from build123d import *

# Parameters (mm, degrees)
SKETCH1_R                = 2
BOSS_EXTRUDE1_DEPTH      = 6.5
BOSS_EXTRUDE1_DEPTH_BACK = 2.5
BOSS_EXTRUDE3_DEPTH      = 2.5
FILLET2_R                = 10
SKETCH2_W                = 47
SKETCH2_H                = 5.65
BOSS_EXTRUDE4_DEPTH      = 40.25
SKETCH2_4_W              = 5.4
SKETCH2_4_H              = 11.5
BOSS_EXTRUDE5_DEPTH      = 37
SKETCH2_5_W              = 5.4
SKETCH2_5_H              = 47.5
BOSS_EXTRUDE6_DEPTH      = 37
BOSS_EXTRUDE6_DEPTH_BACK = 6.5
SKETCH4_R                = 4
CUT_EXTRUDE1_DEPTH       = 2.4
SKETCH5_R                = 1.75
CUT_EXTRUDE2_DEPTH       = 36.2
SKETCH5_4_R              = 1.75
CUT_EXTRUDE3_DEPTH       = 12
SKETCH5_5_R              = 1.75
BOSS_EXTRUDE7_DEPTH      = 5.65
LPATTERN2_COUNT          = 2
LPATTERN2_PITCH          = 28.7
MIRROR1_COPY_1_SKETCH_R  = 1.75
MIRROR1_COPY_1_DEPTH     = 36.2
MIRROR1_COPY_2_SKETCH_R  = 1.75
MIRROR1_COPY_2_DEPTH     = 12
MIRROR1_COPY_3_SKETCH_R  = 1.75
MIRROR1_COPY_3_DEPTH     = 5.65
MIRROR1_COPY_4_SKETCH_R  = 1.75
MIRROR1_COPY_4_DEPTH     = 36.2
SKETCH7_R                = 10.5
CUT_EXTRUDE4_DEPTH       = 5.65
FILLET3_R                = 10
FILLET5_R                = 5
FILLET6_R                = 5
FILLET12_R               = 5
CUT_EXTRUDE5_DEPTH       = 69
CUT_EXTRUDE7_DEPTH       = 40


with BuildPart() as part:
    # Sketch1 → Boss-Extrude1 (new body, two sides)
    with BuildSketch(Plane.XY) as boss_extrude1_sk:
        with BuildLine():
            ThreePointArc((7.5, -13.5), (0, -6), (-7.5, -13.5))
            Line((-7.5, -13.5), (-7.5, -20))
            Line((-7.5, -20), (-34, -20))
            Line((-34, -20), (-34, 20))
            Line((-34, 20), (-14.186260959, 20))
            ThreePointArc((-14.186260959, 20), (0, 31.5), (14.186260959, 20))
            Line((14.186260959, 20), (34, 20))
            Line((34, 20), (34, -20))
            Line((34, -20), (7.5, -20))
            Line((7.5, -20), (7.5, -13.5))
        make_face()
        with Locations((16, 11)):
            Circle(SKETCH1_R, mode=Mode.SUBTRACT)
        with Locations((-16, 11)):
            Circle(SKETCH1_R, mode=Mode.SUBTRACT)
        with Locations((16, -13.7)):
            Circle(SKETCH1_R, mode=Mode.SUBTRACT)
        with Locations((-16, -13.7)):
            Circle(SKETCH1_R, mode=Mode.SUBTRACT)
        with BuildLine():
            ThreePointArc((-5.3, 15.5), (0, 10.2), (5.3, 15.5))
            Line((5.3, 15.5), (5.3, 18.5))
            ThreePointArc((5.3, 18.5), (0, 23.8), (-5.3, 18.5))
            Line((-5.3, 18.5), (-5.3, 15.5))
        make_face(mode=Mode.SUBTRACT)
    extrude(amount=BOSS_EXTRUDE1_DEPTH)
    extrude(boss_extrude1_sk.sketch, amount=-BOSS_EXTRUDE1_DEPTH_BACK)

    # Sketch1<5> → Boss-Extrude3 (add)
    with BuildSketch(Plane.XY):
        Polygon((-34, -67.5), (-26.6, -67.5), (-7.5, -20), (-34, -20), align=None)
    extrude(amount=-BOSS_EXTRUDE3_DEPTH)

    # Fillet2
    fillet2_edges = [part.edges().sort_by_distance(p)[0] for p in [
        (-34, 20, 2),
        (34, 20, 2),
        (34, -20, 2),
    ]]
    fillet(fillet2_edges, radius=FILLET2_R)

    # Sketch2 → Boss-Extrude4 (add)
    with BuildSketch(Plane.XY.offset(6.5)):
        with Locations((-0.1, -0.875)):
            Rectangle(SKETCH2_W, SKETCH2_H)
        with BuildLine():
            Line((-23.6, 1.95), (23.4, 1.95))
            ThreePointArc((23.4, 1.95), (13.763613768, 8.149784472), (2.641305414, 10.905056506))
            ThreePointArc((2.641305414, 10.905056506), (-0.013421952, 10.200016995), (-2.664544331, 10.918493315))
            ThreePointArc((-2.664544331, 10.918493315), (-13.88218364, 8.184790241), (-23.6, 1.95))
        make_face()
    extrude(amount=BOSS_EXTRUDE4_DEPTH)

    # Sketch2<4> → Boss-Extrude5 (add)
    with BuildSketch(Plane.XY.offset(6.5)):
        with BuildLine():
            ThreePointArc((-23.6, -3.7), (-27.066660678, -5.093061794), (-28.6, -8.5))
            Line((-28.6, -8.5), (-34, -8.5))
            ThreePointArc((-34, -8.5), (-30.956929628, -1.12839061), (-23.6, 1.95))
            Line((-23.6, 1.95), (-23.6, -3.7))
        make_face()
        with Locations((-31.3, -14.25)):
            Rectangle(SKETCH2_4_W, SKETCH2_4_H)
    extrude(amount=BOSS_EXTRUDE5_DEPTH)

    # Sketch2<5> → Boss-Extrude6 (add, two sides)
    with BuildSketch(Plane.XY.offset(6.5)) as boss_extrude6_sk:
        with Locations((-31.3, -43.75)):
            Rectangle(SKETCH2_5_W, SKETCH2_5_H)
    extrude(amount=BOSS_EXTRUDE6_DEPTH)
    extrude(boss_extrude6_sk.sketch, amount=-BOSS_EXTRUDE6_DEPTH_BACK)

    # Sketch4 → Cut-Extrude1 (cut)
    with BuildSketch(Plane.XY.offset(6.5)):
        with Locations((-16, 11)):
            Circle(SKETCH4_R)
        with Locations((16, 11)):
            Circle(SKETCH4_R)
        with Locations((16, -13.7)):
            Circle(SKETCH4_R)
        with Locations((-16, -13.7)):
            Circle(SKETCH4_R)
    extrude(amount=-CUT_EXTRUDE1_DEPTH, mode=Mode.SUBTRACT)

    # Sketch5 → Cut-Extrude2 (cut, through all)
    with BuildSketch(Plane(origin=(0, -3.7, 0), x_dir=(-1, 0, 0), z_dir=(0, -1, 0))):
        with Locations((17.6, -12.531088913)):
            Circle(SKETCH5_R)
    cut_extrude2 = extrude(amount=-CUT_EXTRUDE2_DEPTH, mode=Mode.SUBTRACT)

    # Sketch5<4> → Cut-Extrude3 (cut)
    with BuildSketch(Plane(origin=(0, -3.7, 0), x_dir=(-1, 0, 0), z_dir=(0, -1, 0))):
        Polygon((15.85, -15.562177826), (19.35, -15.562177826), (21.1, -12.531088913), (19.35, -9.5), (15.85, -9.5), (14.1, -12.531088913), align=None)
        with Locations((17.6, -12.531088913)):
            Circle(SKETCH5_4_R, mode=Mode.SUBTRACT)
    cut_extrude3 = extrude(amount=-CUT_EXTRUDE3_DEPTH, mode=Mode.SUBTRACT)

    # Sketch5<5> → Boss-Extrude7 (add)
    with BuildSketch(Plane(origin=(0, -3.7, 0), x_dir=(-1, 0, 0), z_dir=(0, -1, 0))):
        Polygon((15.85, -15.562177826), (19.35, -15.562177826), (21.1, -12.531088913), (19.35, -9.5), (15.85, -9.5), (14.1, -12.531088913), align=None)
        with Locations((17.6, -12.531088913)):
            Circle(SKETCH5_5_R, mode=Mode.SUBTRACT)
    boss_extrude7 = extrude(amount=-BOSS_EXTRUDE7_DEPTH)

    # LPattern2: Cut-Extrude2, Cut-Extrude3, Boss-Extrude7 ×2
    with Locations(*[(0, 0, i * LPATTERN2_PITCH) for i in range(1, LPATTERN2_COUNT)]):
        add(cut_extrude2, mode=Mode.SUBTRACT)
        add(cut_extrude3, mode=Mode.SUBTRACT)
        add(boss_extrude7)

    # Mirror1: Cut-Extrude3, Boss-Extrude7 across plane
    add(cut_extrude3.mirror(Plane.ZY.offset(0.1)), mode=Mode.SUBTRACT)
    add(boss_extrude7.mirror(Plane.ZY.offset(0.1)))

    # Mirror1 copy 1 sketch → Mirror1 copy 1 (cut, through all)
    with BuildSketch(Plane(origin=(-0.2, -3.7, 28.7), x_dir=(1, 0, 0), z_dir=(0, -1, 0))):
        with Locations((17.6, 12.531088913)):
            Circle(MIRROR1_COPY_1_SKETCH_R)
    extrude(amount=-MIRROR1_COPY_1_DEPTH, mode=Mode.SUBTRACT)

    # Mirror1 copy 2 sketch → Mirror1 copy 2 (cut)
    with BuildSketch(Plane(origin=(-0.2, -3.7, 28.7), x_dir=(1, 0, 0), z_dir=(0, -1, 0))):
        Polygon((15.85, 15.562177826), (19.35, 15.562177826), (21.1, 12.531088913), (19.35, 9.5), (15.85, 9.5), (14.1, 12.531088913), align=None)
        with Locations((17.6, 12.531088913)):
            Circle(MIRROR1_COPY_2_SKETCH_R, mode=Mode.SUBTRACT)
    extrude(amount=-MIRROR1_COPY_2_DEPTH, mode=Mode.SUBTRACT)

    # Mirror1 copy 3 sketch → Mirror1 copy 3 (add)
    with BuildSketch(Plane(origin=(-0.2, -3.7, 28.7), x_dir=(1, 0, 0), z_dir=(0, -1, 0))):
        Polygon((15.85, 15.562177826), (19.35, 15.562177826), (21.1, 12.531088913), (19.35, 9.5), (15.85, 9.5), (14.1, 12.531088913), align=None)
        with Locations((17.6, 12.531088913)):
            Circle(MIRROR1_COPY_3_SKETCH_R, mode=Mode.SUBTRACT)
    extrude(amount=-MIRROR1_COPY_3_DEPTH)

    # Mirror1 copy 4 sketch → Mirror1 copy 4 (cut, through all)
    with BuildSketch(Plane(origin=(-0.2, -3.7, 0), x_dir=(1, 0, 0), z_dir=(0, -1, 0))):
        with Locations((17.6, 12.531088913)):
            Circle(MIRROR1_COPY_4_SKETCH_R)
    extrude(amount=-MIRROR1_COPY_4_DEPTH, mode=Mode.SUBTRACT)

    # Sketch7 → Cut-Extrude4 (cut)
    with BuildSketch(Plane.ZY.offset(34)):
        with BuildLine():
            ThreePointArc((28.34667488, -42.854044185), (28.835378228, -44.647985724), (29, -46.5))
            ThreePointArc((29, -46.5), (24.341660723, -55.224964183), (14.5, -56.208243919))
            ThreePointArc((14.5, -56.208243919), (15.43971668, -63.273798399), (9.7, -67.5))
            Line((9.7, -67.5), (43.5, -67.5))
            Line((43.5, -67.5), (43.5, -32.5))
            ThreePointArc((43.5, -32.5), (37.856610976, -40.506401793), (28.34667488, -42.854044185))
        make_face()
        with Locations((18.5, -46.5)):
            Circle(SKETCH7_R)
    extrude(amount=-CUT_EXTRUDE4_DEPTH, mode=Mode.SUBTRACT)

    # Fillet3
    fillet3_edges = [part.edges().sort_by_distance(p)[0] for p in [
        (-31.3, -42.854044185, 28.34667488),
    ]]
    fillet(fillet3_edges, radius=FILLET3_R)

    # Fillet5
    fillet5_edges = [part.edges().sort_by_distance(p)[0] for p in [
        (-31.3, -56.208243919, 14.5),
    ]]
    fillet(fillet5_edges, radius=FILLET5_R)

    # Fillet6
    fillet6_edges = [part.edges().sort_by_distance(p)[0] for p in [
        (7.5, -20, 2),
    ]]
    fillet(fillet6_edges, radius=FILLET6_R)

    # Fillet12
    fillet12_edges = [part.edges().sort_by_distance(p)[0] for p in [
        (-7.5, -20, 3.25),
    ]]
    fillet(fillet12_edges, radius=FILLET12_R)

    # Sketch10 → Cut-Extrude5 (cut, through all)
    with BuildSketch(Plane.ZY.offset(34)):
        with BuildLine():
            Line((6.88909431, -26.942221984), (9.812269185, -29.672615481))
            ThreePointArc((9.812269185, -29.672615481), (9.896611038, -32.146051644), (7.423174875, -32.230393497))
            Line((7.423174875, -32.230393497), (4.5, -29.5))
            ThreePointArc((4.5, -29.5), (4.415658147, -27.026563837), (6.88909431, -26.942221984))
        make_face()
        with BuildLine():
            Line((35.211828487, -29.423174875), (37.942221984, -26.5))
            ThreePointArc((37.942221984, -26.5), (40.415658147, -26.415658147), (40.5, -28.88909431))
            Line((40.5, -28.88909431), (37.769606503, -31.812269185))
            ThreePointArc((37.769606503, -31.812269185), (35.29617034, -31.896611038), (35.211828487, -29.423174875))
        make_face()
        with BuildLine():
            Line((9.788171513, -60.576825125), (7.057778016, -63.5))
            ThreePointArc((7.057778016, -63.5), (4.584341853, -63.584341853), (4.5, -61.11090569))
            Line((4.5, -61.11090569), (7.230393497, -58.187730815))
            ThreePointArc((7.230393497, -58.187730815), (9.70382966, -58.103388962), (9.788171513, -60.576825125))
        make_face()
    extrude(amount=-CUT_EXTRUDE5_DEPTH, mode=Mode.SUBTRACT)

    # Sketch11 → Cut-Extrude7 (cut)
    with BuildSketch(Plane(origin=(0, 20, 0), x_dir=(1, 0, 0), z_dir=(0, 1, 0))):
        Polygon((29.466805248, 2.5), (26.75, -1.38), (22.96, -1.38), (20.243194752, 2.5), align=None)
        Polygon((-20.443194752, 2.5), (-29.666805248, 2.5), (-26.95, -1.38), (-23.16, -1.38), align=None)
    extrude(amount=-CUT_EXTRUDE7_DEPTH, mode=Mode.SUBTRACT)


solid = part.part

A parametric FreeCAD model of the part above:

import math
import FreeCAD as App
import Part
import Sketcher
Q = App.Units.Quantity


def edges_at(feature, points):
    """Names of the edges that pass closest to the given points."""
    edges = feature.Shape.Edges
    near = lambda p: min(range(len(edges)), key=lambda i: edges[i].distToShape(Part.Vertex(*p))[0])
    return sorted({f"Edge{near(p) + 1}" for p in points})


def add_polygon(sketch, points):
    """Adds a closed chain of lines whose ends are joined by coincident constraints."""
    first, n = sketch.GeometryCount, len(points)
    for a, b in zip(points, points[1:] + points[:1]):
        sketch.addGeometry(Part.LineSegment(App.Vector(*a, 0), App.Vector(*b, 0)), False)
    for i in range(n):
        sketch.addConstraint(Sketcher.Constraint("Coincident", first + i, 2, first + (i + 1) % n, 1))

doc = App.newDocument("Part")
body = doc.addObject("PartDesign::Body", "Body")

sketch1 = doc.addObject("Sketcher::SketchObject", "Sketch")
body.addObject(sketch1)
sketch1.AttachmentSupport = (doc.XY_Plane, [""])
sketch1.MapMode = "FlatFace"
sketch1.addGeometry([
    Part.ArcOfCircle(Part.Circle(App.Vector(0, -13.5, 0), App.Vector(0, 0, 1), 7.5), math.radians(0), math.radians(180)),
    Part.LineSegment(App.Vector(7.5, -13.5, 0), App.Vector(7.5, -20, 0)),
    Part.LineSegment(App.Vector(7.5, -20, 0), App.Vector(34, -20, 0)),
    Part.LineSegment(App.Vector(34, -20, 0), App.Vector(34, 20, 0)),
    Part.LineSegment(App.Vector(34, 20, 0), App.Vector(14.186261, 20, 0)),
    Part.ArcOfCircle(Part.Circle(App.Vector(0, 17, 0), App.Vector(0, 0, 1), 14.5), math.radians(11.940544), math.radians(168.059456)),
    Part.LineSegment(App.Vector(-14.186261, 20, 0), App.Vector(-34, 20, 0)),
    Part.LineSegment(App.Vector(-34, 20, 0), App.Vector(-34, -20, 0)),
    Part.LineSegment(App.Vector(-34, -20, 0), App.Vector(-7.5, -20, 0)),
    Part.LineSegment(App.Vector(-7.5, -20, 0), App.Vector(-7.5, -13.5, 0)),
    Part.Circle(App.Vector(16, -13.7, 0), App.Vector(0, 0, 1), 2),
    Part.Circle(App.Vector(-16, -13.7, 0), App.Vector(0, 0, 1), 2),
    Part.Circle(App.Vector(16, 11, 0), App.Vector(0, 0, 1), 2),
    Part.Circle(App.Vector(-16, 11, 0), App.Vector(0, 0, 1), 2),
    Part.LineSegment(App.Vector(-5.3, 15.5, 0), App.Vector(-5.3, 18.5, 0)),
    Part.ArcOfCircle(Part.Circle(App.Vector(0, 18.5, 0), App.Vector(0, 0, 1), 5.3), math.radians(0), math.radians(180)),
    Part.LineSegment(App.Vector(5.3, 18.5, 0), App.Vector(5.3, 15.5, 0)),
    Part.ArcOfCircle(Part.Circle(App.Vector(0, 15.5, 0), App.Vector(0, 0, 1), 5.3), math.radians(180), math.radians(360)),
], False)
sketch1.addConstraint([
    Sketcher.Constraint("Tangent", 0, 1, 1, 1),
    Sketcher.Constraint("Coincident", 1, 2, 2, 1),
    Sketcher.Constraint("Coincident", 2, 2, 3, 1),
    Sketcher.Constraint("Coincident", 3, 2, 4, 1),
    Sketcher.Constraint("Coincident", 4, 2, 5, 1),
    Sketcher.Constraint("Coincident", 5, 2, 6, 1),
    Sketcher.Constraint("Coincident", 6, 2, 7, 1),
    Sketcher.Constraint("Coincident", 7, 2, 8, 1),
    Sketcher.Constraint("Coincident", 8, 2, 9, 1),
    Sketcher.Constraint("Tangent", 9, 2, 0, 2),
    Sketcher.Constraint("Tangent", 14, 2, 15, 2),
    Sketcher.Constraint("Tangent", 15, 1, 16, 1),
    Sketcher.Constraint("Tangent", 16, 2, 17, 2),
    Sketcher.Constraint("Tangent", 17, 1, 14, 1),
    Sketcher.Constraint("Vertical", 1),
    Sketcher.Constraint("Horizontal", 2),
    Sketcher.Constraint("Vertical", 3),
    Sketcher.Constraint("Horizontal", 4),
    Sketcher.Constraint("Horizontal", 6),
    Sketcher.Constraint("Vertical", 7),
    Sketcher.Constraint("Horizontal", 8),
    Sketcher.Constraint("Vertical", 9),
    Sketcher.Constraint("Vertical", 14),
    Sketcher.Constraint("Vertical", 16),
    Sketcher.Constraint("Equal", 10, 11),
    Sketcher.Constraint("Equal", 11, 12),
    Sketcher.Constraint("Equal", 12, 13),
    Sketcher.Constraint("Symmetric", 2, 2, 6, 2, -1, 1),
    Sketcher.Constraint("Symmetric", 10, 3, 11, 3, -2),
    Sketcher.Constraint("Symmetric", 12, 3, 13, 3, -2),
    Sketcher.Constraint("Symmetric", 4, 2, 5, 2, -2),
    Sketcher.Constraint("Symmetric", 1, 2, 8, 2, -2),
    Sketcher.Constraint("PointOnObject", 15, 3, -2),
    Sketcher.Constraint("Vertical", 10, 3, 12, 3),
    Sketcher.Constraint("Diameter", 10, Q("4 mm")),
    Sketcher.Constraint("Radius", 0, Q("7.5 mm")),
    Sketcher.Constraint("Radius", 5, Q("14.5 mm")),
    Sketcher.Constraint("Radius", 15, Q("5.3 mm")),
    Sketcher.Constraint("DistanceY", 3, 1, 3, 2, Q("40 mm")),
    Sketcher.Constraint("DistanceY", 14, 1, 14, 2, Q("3 mm")),
    Sketcher.Constraint("DistanceX", 2, 1, 2, 2, Q("26.5 mm")),
    Sketcher.Constraint("DistanceY", 1, 2, 1, 1, Q("6.5 mm")),
    Sketcher.Constraint("DistanceY", -1, 1, 5, 3, Q("17 mm")),
    Sketcher.Constraint("DistanceX", -1, 1, 10, 3, Q("16 mm")),
    Sketcher.Constraint("DistanceY", -1, 1, 12, 3, Q("11 mm")),
    Sketcher.Constraint("DistanceY", 0, 3, 15, 3, Q("32 mm")),
    Sketcher.Constraint("DistanceY", 10, 3, -1, 1, Q("13.7 mm")),
])
pad1 = doc.addObject("PartDesign::Pad", "Pad")
body.addObject(pad1)
pad1.Profile = sketch1
pad1.Type = "TwoLengths"
pad1.Length = 6.5
pad1.Length2 = 2.5

sketch2 = doc.addObject("Sketcher::SketchObject", "Sketch001")
body.addObject(sketch2)
sketch2.AttachmentSupport = (doc.XY_Plane, [""])
sketch2.MapMode = "FlatFace"
add_polygon(sketch2, [(-34, -67.5), (-26.6, -67.5), (-7.5, -20), (-34, -20)])
sketch2.addConstraint([
    Sketcher.Constraint("Horizontal", 0),
    Sketcher.Constraint("Horizontal", 2),
    Sketcher.Constraint("Vertical", 3),
    Sketcher.Constraint("DistanceX", 0, 1, 0, 2, Q("7.4 mm")),
    Sketcher.Constraint("DistanceX", 2, 2, 2, 1, Q("26.5 mm")),
    Sketcher.Constraint("DistanceY", 3, 2, 3, 1, Q("47.5 mm")),
    Sketcher.Constraint("DistanceY", 1, 2, -1, 1, Q("20 mm")),
    Sketcher.Constraint("DistanceX", 2, 2, -1, 1, Q("34 mm")),
])
pad2 = doc.addObject("PartDesign::Pad", "Pad001")
body.addObject(pad2)
pad2.Profile = sketch2
pad2.Length = 2.5
pad2.Reversed = True
doc.recompute()

fillet = doc.addObject("PartDesign::Fillet", "Fillet")
body.addObject(fillet)
fillet.Base = (pad2, edges_at(pad2, [(-34, 20, 2), (34, 20, 2), (34, -20, 2)]))
fillet.Radius = 10

sketch3 = doc.addObject("Sketcher::SketchObject", "Sketch002")
body.addObject(sketch3)
sketch3.AttachmentSupport = (doc.XY_Plane, [""])
sketch3.MapMode = "FlatFace"
sketch3.AttachmentOffset = App.Placement(App.Vector(0, 0, 6.5), App.Rotation())
sketch3.addGeometry([
    Part.LineSegment(App.Vector(-23.6, 1.95, 0), App.Vector(-23.6, -3.7, 0)),
    Part.LineSegment(App.Vector(-23.6, -3.7, 0), App.Vector(23.4, -3.7, 0)),
    Part.LineSegment(App.Vector(23.4, -3.7, 0), App.Vector(23.4, 1.95, 0)),
    Part.ArcOfCircle(Part.Circle(App.Vector(-0.1, -23.987425, 0), App.Vector(0, 0, 1), 35), math.radians(47.822581), math.radians(85.507821)),
    Part.ArcOfCircle(Part.Circle(App.Vector(0, 15.5, 0), App.Vector(0, 0, 1), 5.3), math.radians(-120.181722), math.radians(-60.108475)),
    Part.ArcOfCircle(Part.Circle(App.Vector(-0.1, -23.987425, 0), App.Vector(0, 0, 1), 35), math.radians(94.201982), math.radians(132.177419)),
], False)
sketch3.addConstraint([
    Sketcher.Constraint("Coincident", 0, 2, 1, 1),
    Sketcher.Constraint("Coincident", 1, 2, 2, 1),
    Sketcher.Constraint("Coincident", 2, 2, 3, 1),
    Sketcher.Constraint("Coincident", 3, 2, 4, 2),
    Sketcher.Constraint("Coincident", 4, 1, 5, 1),
    Sketcher.Constraint("Coincident", 5, 2, 0, 1),
    Sketcher.Constraint("Vertical", 0),
    Sketcher.Constraint("Horizontal", 1),
    Sketcher.Constraint("Vertical", 2),
    Sketcher.Constraint("Coincident", 5, 3, 3, 3),
    Sketcher.Constraint("Equal", 3, 5),
    Sketcher.Constraint("PointOnObject", 4, 3, -2),
    Sketcher.Constraint("Horizontal", 2, 2, 5, 2),
    Sketcher.Constraint("Radius", 3, Q("35 mm")),
    Sketcher.Constraint("Radius", 4, Q("5.3 mm")),
    Sketcher.Constraint("DistanceX", 1, 1, 1, 2, Q("47 mm")),
    Sketcher.Constraint("DistanceY", 0, 2, 0, 1, Q("5.65 mm")),
    Sketcher.Constraint("DistanceX", 3, 3, -1, 1, Q("0.1 mm")),
    Sketcher.Constraint("DistanceY", -1, 1, 4, 3, Q("15.5 mm")),
    Sketcher.Constraint("DistanceY", 0, 2, -1, 1, Q("3.7 mm")),
])
pad3 = doc.addObject("PartDesign::Pad", "Pad002")
body.addObject(pad3)
pad3.Profile = sketch3
pad3.Length = 40.25

sketch4 = doc.addObject("Sketcher::SketchObject", "Sketch003")
body.addObject(sketch4)
sketch4.AttachmentSupport = (doc.XY_Plane, [""])
sketch4.MapMode = "FlatFace"
sketch4.AttachmentOffset = App.Placement(App.Vector(0, 0, 6.5), App.Rotation())
sketch4.addGeometry([
    Part.ArcOfCircle(Part.Circle(App.Vector(-23.604002, -8.699998, 0), App.Vector(0, 0, 1), 5), math.radians(89.954146), math.radians(177.707576)),
    Part.LineSegment(App.Vector(-23.6, -3.7, 0), App.Vector(-23.6, 1.95, 0)),
    Part.ArcOfCircle(Part.Circle(App.Vector(-23.54988, -8.5, 0), App.Vector(0, 0, 1), 10.45012), math.radians(90.274799), math.radians(180)),
    Part.LineSegment(App.Vector(-34, -8.5, 0), App.Vector(-34, -20, 0)),
    Part.LineSegment(App.Vector(-34, -20, 0), App.Vector(-28.6, -20, 0)),
    Part.LineSegment(App.Vector(-28.6, -20, 0), App.Vector(-28.6, -8.5, 0)),
], False)
sketch4.addConstraint([
    Sketcher.Constraint("Coincident", 0, 1, 1, 1),
    Sketcher.Constraint("Coincident", 1, 2, 2, 1),
    Sketcher.Constraint("Tangent", 2, 2, 3, 1),
    Sketcher.Constraint("Coincident", 3, 2, 4, 1),
    Sketcher.Constraint("Coincident", 4, 2, 5, 1),
    Sketcher.Constraint("Coincident", 5, 2, 0, 2),
    Sketcher.Constraint("Vertical", 1),
    Sketcher.Constraint("Vertical", 3),
    Sketcher.Constraint("Horizontal", 4),
    Sketcher.Constraint("Vertical", 5),
    Sketcher.Constraint("Horizontal", 2, 2, 5, 2),
    Sketcher.Constraint("Radius", 0, Q("5 mm")),
    Sketcher.Constraint("DistanceX", 4, 1, 4, 2, Q("5.4 mm")),
    Sketcher.Constraint("DistanceY", 3, 2, 3, 1, Q("11.5 mm")),
    Sketcher.Constraint("DistanceX", 2, 2, -1, 1, Q("34 mm")),
    Sketcher.Constraint("DistanceY", 3, 2, -1, 1, Q("20 mm")),
    Sketcher.Constraint("DistanceX", 4, 2, 0, 1, Q("5 mm")),
    Sketcher.Constraint("DistanceY", 1, 1, 1, 2, Q("5.65 mm")),
    Sketcher.Constraint("DistanceY", 0, 3, -1, 1, Q("8.699998 mm")),
])
pad4 = doc.addObject("PartDesign::Pad", "Pad003")
body.addObject(pad4)
pad4.Profile = sketch4
pad4.Length = 37

sketch5 = doc.addObject("Sketcher::SketchObject", "Sketch004")
body.addObject(sketch5)
sketch5.AttachmentSupport = (doc.XY_Plane, [""])
sketch5.MapMode = "FlatFace"
sketch5.AttachmentOffset = App.Placement(App.Vector(0, 0, 6.5), App.Rotation())
add_polygon(sketch5, [(-34, -20), (-34, -67.5), (-28.6, -67.5), (-28.6, -20)])
sketch5.addConstraint([
    Sketcher.Constraint("Vertical", 0),
    Sketcher.Constraint("Horizontal", 1),
    Sketcher.Constraint("Vertical", 2),
    Sketcher.Constraint("Horizontal", 3),
    Sketcher.Constraint("DistanceX", 1, 1, 1, 2, Q("5.4 mm")),
    Sketcher.Constraint("DistanceY", 0, 2, 0, 1, Q("47.5 mm")),
    Sketcher.Constraint("DistanceX", 0, 2, -1, 1, Q("34 mm")),
    Sketcher.Constraint("DistanceY", 2, 2, -1, 1, Q("20 mm")),
])
pad5 = doc.addObject("PartDesign::Pad", "Pad004")
body.addObject(pad5)
pad5.Profile = sketch5
pad5.Type = "TwoLengths"
pad5.Length = 37
pad5.Length2 = 6.5

sketch6 = doc.addObject("Sketcher::SketchObject", "Sketch005")
body.addObject(sketch6)
sketch6.AttachmentSupport = (doc.XY_Plane, [""])
sketch6.MapMode = "FlatFace"
sketch6.AttachmentOffset = App.Placement(App.Vector(0, 0, 6.5), App.Rotation())
sketch6.addGeometry([
    Part.Circle(App.Vector(-16, 11, 0), App.Vector(0, 0, 1), 4),
    Part.Circle(App.Vector(16, 11, 0), App.Vector(0, 0, 1), 4),
    Part.Circle(App.Vector(16, -13.7, 0), App.Vector(0, 0, 1), 4),
    Part.Circle(App.Vector(-16, -13.7, 0), App.Vector(0, 0, 1), 4),
], False)
sketch6.addConstraint([
    Sketcher.Constraint("Equal", 0, 1),
    Sketcher.Constraint("Equal", 1, 2),
    Sketcher.Constraint("Equal", 2, 3),
    Sketcher.Constraint("Symmetric", 0, 3, 1, 3, -2),
    Sketcher.Constraint("Symmetric", 2, 3, 3, 3, -2),
    Sketcher.Constraint("Vertical", 1, 3, 2, 3),
    Sketcher.Constraint("Diameter", 0, Q("8 mm")),
    Sketcher.Constraint("DistanceX", 0, 3, -1, 1, Q("16 mm")),
    Sketcher.Constraint("DistanceY", -1, 1, 0, 3, Q("11 mm")),
    Sketcher.Constraint("DistanceY", 2, 3, -1, 1, Q("13.7 mm")),
])
pocket1 = doc.addObject("PartDesign::Pocket", "Pocket")
body.addObject(pocket1)
pocket1.Profile = sketch6
pocket1.Length = 2.4

sketch7 = doc.addObject("Sketcher::SketchObject", "Sketch006")
body.addObject(sketch7)
sketch7.AttachmentSupport = (doc.XZ_Plane, [""])
sketch7.MapMode = "FlatFace"
sketch7.AttachmentOffset = App.Placement(App.Vector(0, 0, 3.7), App.Rotation())
sketch7.addGeometry(Part.Circle(App.Vector(-17.6, 12.531089, 0), App.Vector(0, 0, 1), 1.75), False)
sketch7.addConstraint([
    Sketcher.Constraint("Diameter", 0, Q("3.5 mm")),
    Sketcher.Constraint("DistanceX", 0, 3, -1, 1, Q("17.6 mm")),
    Sketcher.Constraint("DistanceY", -1, 1, 0, 3, Q("12.531089 mm")),
])
pocket2 = doc.addObject("PartDesign::Pocket", "Pocket001")
body.addObject(pocket2)
pocket2.Profile = sketch7
pocket2.Type = "ThroughAll"

sketch8 = doc.addObject("Sketcher::SketchObject", "Sketch007")
body.addObject(sketch8)
sketch8.AttachmentSupport = (doc.XZ_Plane, [""])
sketch8.MapMode = "FlatFace"
sketch8.AttachmentOffset = App.Placement(App.Vector(0, 0, 3.7), App.Rotation())
add_polygon(sketch8, [(-15.85, 15.562178), (-19.35, 15.562178), (-21.1, 12.531089), (-19.35, 9.5), (-15.85, 9.5), (-14.1, 12.531089)])
sketch8.addGeometry(Part.Circle(App.Vector(-17.6, 12.531089, 0), App.Vector(0, 0, 1), 1.75), False)
sketch8.addConstraint([
    Sketcher.Constraint("Horizontal", 0),
    Sketcher.Constraint("Horizontal", 3),
    Sketcher.Constraint("Parallel", 1, 4),
    Sketcher.Constraint("Parallel", 2, 5),
    Sketcher.Constraint("Horizontal", 6, 3, 1, 2),
    Sketcher.Constraint("Horizontal", 1, 2, 4, 2),
    Sketcher.Constraint("Vertical", 0, 2, 2, 2),
    Sketcher.Constraint("Vertical", 3, 2, 5, 2),
    Sketcher.Constraint("Diameter", 6, Q("3.5 mm")),
    Sketcher.Constraint("Angle", 1, Q("-120 deg")),
    Sketcher.Constraint("DistanceX", 0, 2, 0, 1, Q("3.5 mm")),
    Sketcher.Constraint("DistanceX", 1, 2, 4, 2, Q("7 mm")),
    Sketcher.Constraint("DistanceX", 6, 3, -1, 1, Q("17.6 mm")),
    Sketcher.Constraint("DistanceX", 1, 2, -1, 1, Q("21.1 mm")),
    Sketcher.Constraint("DistanceY", -1, 1, 2, 2, Q("9.5 mm")),
])
pocket3 = doc.addObject("PartDesign::Pocket", "Pocket002")
body.addObject(pocket3)
pocket3.Profile = sketch8
pocket3.Length = 12

sketch9 = doc.addObject("Sketcher::SketchObject", "Sketch008")
body.addObject(sketch9)
sketch9.AttachmentSupport = (doc.XZ_Plane, [""])
sketch9.MapMode = "FlatFace"
sketch9.AttachmentOffset = App.Placement(App.Vector(0, 0, 3.7), App.Rotation())
add_polygon(sketch9, [(-15.85, 15.562178), (-19.35, 15.562178), (-21.1, 12.531089), (-19.35, 9.5), (-15.85, 9.5), (-14.1, 12.531089)])
sketch9.addGeometry(Part.Circle(App.Vector(-17.6, 12.531089, 0), App.Vector(0, 0, 1), 1.75), False)
sketch9.addConstraint([
    Sketcher.Constraint("Horizontal", 0),
    Sketcher.Constraint("Horizontal", 3),
    Sketcher.Constraint("Parallel", 1, 4),
    Sketcher.Constraint("Parallel", 2, 5),
    Sketcher.Constraint("Horizontal", 6, 3, 1, 2),
    Sketcher.Constraint("Horizontal", 1, 2, 4, 2),
    Sketcher.Constraint("Vertical", 0, 2, 2, 2),
    Sketcher.Constraint("Vertical", 3, 2, 5, 2),
    Sketcher.Constraint("Diameter", 6, Q("3.5 mm")),
    Sketcher.Constraint("Angle", 1, Q("-120 deg")),
    Sketcher.Constraint("DistanceX", 0, 2, 0, 1, Q("3.5 mm")),
    Sketcher.Constraint("DistanceX", 1, 2, 4, 2, Q("7 mm")),
    Sketcher.Constraint("DistanceX", 6, 3, -1, 1, Q("17.6 mm")),
    Sketcher.Constraint("DistanceX", 1, 2, -1, 1, Q("21.1 mm")),
    Sketcher.Constraint("DistanceY", -1, 1, 2, 2, Q("9.5 mm")),
])
pad6 = doc.addObject("PartDesign::Pad", "Pad005")
body.addObject(pad6)
pad6.Profile = sketch9
pad6.Length = 5.65
pad6.Reversed = True
doc.recompute()

linearpattern = doc.addObject("PartDesign::LinearPattern", "LinearPattern")
body.addObject(linearpattern)
linearpattern.Originals = [pocket2, pocket3, pad6]
linearpattern.Direction = (doc.Z_Axis, [""])
linearpattern.Mode = "offset"
linearpattern.Offset = 28.7
linearpattern.Occurrences = 2
body.Tip = linearpattern
doc.recompute()

datumplane = doc.addObject("PartDesign::Plane", "DatumPlane")
body.addObject(datumplane)
datumplane.AttachmentSupport = (doc.YZ_Plane, [""])
datumplane.MapMode = "FlatFace"
datumplane.AttachmentOffset = App.Placement(App.Vector(0, 0, -0.1), App.Rotation())
mirrored = doc.addObject("PartDesign::Mirrored", "Mirrored")
body.addObject(mirrored)
mirrored.Originals = [pocket3, pad6]
mirrored.MirrorPlane = (datumplane, [""])
body.Tip = mirrored

sketch10 = doc.addObject("Sketcher::SketchObject", "Sketch009")
body.addObject(sketch10)
sketch10.AttachmentSupport = (doc.XZ_Plane, [""])
sketch10.MapMode = "FlatFace"
sketch10.AttachmentOffset = App.Placement(App.Vector(0, 0, 3.7), App.Rotation())
sketch10.addGeometry(Part.Circle(App.Vector(17.4, 41.231089, 0), App.Vector(0, 0, 1), 1.75), False)
sketch10.addConstraint([
    Sketcher.Constraint("Diameter", 0, Q("3.5 mm")),
    Sketcher.Constraint("DistanceX", -1, 1, 0, 3, Q("17.4 mm")),
    Sketcher.Constraint("DistanceY", -1, 1, 0, 3, Q("41.231089 mm")),
])
pocket4 = doc.addObject("PartDesign::Pocket", "Pocket003")
body.addObject(pocket4)
pocket4.Profile = sketch10
pocket4.Type = "ThroughAll"

sketch11 = doc.addObject("Sketcher::SketchObject", "Sketch010")
body.addObject(sketch11)
sketch11.AttachmentSupport = (doc.XZ_Plane, [""])
sketch11.MapMode = "FlatFace"
sketch11.AttachmentOffset = App.Placement(App.Vector(0, 0, 3.7), App.Rotation())
add_polygon(sketch11, [(19.15, 44.262178), (15.65, 44.262178), (13.9, 41.231089), (15.65, 38.2), (19.15, 38.2), (20.9, 41.231089)])
sketch11.addGeometry(Part.Circle(App.Vector(17.4, 41.231089, 0), App.Vector(0, 0, 1), 1.75), False)
sketch11.addConstraint([
    Sketcher.Constraint("Horizontal", 0),
    Sketcher.Constraint("Horizontal", 3),
    Sketcher.Constraint("Parallel", 1, 4),
    Sketcher.Constraint("Parallel", 2, 5),
    Sketcher.Constraint("Horizontal", 6, 3, 1, 2),
    Sketcher.Constraint("Horizontal", 1, 2, 4, 2),
    Sketcher.Constraint("Vertical", 0, 2, 2, 2),
    Sketcher.Constraint("Vertical", 3, 2, 5, 2),
    Sketcher.Constraint("Diameter", 6, Q("3.5 mm")),
    Sketcher.Constraint("Angle", 1, Q("-120 deg")),
    Sketcher.Constraint("DistanceX", 0, 2, 0, 1, Q("3.5 mm")),
    Sketcher.Constraint("DistanceX", 1, 2, 4, 2, Q("7 mm")),
    Sketcher.Constraint("DistanceX", -1, 1, 6, 3, Q("17.4 mm")),
    Sketcher.Constraint("DistanceX", -1, 1, 1, 2, Q("13.9 mm")),
    Sketcher.Constraint("DistanceY", -1, 1, 2, 2, Q("38.2 mm")),
])
pocket5 = doc.addObject("PartDesign::Pocket", "Pocket004")
body.addObject(pocket5)
pocket5.Profile = sketch11
pocket5.Length = 12

sketch12 = doc.addObject("Sketcher::SketchObject", "Sketch011")
body.addObject(sketch12)
sketch12.AttachmentSupport = (doc.XZ_Plane, [""])
sketch12.MapMode = "FlatFace"
sketch12.AttachmentOffset = App.Placement(App.Vector(0, 0, 3.7), App.Rotation())
add_polygon(sketch12, [(19.15, 44.262178), (15.65, 44.262178), (13.9, 41.231089), (15.65, 38.2), (19.15, 38.2), (20.9, 41.231089)])
sketch12.addGeometry(Part.Circle(App.Vector(17.4, 41.231089, 0), App.Vector(0, 0, 1), 1.75), False)
sketch12.addConstraint([
    Sketcher.Constraint("Horizontal", 0),
    Sketcher.Constraint("Horizontal", 3),
    Sketcher.Constraint("Parallel", 1, 4),
    Sketcher.Constraint("Parallel", 2, 5),
    Sketcher.Constraint("Horizontal", 6, 3, 1, 2),
    Sketcher.Constraint("Horizontal", 1, 2, 4, 2),
    Sketcher.Constraint("Vertical", 0, 2, 2, 2),
    Sketcher.Constraint("Vertical", 3, 2, 5, 2),
    Sketcher.Constraint("Diameter", 6, Q("3.5 mm")),
    Sketcher.Constraint("Angle", 1, Q("-120 deg")),
    Sketcher.Constraint("DistanceX", 0, 2, 0, 1, Q("3.5 mm")),
    Sketcher.Constraint("DistanceX", 1, 2, 4, 2, Q("7 mm")),
    Sketcher.Constraint("DistanceX", -1, 1, 6, 3, Q("17.4 mm")),
    Sketcher.Constraint("DistanceX", -1, 1, 1, 2, Q("13.9 mm")),
    Sketcher.Constraint("DistanceY", -1, 1, 2, 2, Q("38.2 mm")),
])
pad7 = doc.addObject("PartDesign::Pad", "Pad006")
body.addObject(pad7)
pad7.Profile = sketch12
pad7.Length = 5.65
pad7.Reversed = True

sketch13 = doc.addObject("Sketcher::SketchObject", "Sketch012")
body.addObject(sketch13)
sketch13.AttachmentSupport = (doc.XZ_Plane, [""])
sketch13.MapMode = "FlatFace"
sketch13.AttachmentOffset = App.Placement(App.Vector(0, 0, 3.7), App.Rotation())
sketch13.addGeometry(Part.Circle(App.Vector(17.4, 12.531089, 0), App.Vector(0, 0, 1), 1.75), False)
sketch13.addConstraint([
    Sketcher.Constraint("Diameter", 0, Q("3.5 mm")),
    Sketcher.Constraint("DistanceX", -1, 1, 0, 3, Q("17.4 mm")),
    Sketcher.Constraint("DistanceY", -1, 1, 0, 3, Q("12.531089 mm")),
])
pocket6 = doc.addObject("PartDesign::Pocket", "Pocket005")
body.addObject(pocket6)
pocket6.Profile = sketch13
pocket6.Type = "ThroughAll"

sketch14 = doc.addObject("Sketcher::SketchObject", "Sketch013")
body.addObject(sketch14)
sketch14.AttachmentSupport = (doc.YZ_Plane, [""])
sketch14.MapMode = "FlatFace"
sketch14.AttachmentOffset = App.Placement(App.Vector(0, 0, -34), App.Rotation())
sketch14.addGeometry([
    Part.ArcOfCircle(Part.Circle(App.Vector(-60.535329, 8.997606, 0), App.Vector(0, 0, 1), 7), math.radians(51.818472), math.radians(174.241139)),
    Part.LineSegment(App.Vector(-67.5, 9.7, 0), App.Vector(-67.5, 43.5, 0)),
    Part.LineSegment(App.Vector(-67.5, 43.5, 0), App.Vector(-32.5, 43.5, 0)),
    Part.ArcOfCircle(Part.Circle(App.Vector(-28.947118, 29.958322, 0), App.Vector(0, 0, 1), 14), math.radians(104.701145), math.radians(186.610413)),
    Part.ArcOfCircle(Part.Circle(App.Vector(-46.5, 18.5, 0), App.Vector(0, 0, 1), 10.5), math.radians(-157.607312), math.radians(69.68178)),
], False)
sketch14.addConstraint([
    Sketcher.Constraint("Coincident", 0, 2, 1, 1),
    Sketcher.Constraint("Coincident", 1, 2, 2, 1),
    Sketcher.Constraint("Coincident", 2, 2, 3, 1),
    Sketcher.Constraint("Coincident", 3, 2, 4, 2),
    Sketcher.Constraint("Coincident", 4, 1, 0, 1),
    Sketcher.Constraint("Vertical", 1),
    Sketcher.Constraint("Horizontal", 2),
    Sketcher.Constraint("Radius", 0, Q("7 mm")),
    Sketcher.Constraint("Radius", 3, Q("14 mm")),
    Sketcher.Constraint("Radius", 4, Q("10.5 mm")),
    Sketcher.Constraint("DistanceX", 2, 1, 2, 2, Q("35 mm")),
    Sketcher.Constraint("DistanceY", 1, 1, 1, 2, Q("33.8 mm")),
    Sketcher.Constraint("DistanceX", 0, 2, 4, 3, Q("21 mm")),
    Sketcher.Constraint("DistanceY", 4, 3, 1, 2, Q("25 mm")),
    Sketcher.Constraint("DistanceY", 4, 1, 4, 3, Q("4 mm")),
    Sketcher.Constraint("DistanceX", 4, 3, -1, 1, Q("46.5 mm")),
    Sketcher.Constraint("DistanceY", -1, 1, 4, 3, Q("18.5 mm")),
    Sketcher.Constraint("DistanceX", 4, 1, 3, 2, Q("13.3542 mm")),
])
pocket7 = doc.addObject("PartDesign::Pocket", "Pocket006")
body.addObject(pocket7)
pocket7.Profile = sketch14
pocket7.Length = 5.65
pocket7.Reversed = True
doc.recompute()

fillet2 = doc.addObject("PartDesign::Fillet", "Fillet001")
body.addObject(fillet2)
fillet2.Base = (pocket7, edges_at(pocket7, [(-31.3, -42.854, 28.347)]))
fillet2.Radius = 10
doc.recompute()

fillet3 = doc.addObject("PartDesign::Fillet", "Fillet002")
body.addObject(fillet3)
fillet3.Base = (fillet2, edges_at(fillet2, [(-31.3, -56.208, 14.5)]))
fillet3.Radius = 5
doc.recompute()

fillet4 = doc.addObject("PartDesign::Fillet", "Fillet003")
body.addObject(fillet4)
fillet4.Base = (fillet3, edges_at(fillet3, [(7.5, -20, 2)]))
fillet4.Radius = 5
doc.recompute()

fillet5 = doc.addObject("PartDesign::Fillet", "Fillet004")
body.addObject(fillet5)
fillet5.Base = (fillet4, edges_at(fillet4, [(-7.5, -20, 3.25)]))
fillet5.Radius = 5

sketch15 = doc.addObject("Sketcher::SketchObject", "Sketch014")
body.addObject(sketch15)
sketch15.AttachmentSupport = (doc.YZ_Plane, [""])
sketch15.MapMode = "FlatFace"
sketch15.AttachmentOffset = App.Placement(App.Vector(0, 0, -34), App.Rotation())
sketch15.addGeometry([
    Part.LineSegment(App.Vector(-29.672615, 9.812269, 0), App.Vector(-26.942222, 6.889094, 0)),
    Part.ArcOfCircle(Part.Circle(App.Vector(-28.221111, 5.694547, 0), App.Vector(0, 0, 1), 1.75), math.radians(-136.952976), math.radians(43.047024)),
    Part.LineSegment(App.Vector(-29.5, 4.5, 0), App.Vector(-32.230393, 7.423175, 0)),
    Part.ArcOfCircle(Part.Circle(App.Vector(-30.951504, 8.617722, 0), App.Vector(0, 0, 1), 1.75), math.radians(43.047024), math.radians(223.047024)),
    Part.LineSegment(App.Vector(-26.5, 37.942222, 0), App.Vector(-29.423175, 35.211828, 0)),
    Part.ArcOfCircle(Part.Circle(App.Vector(-30.617722, 36.490717, 0), App.Vector(0, 0, 1), 1.75), math.radians(133.047024), math.radians(313.047024)),
    Part.LineSegment(App.Vector(-31.812269, 37.769607, 0), App.Vector(-28.889094, 40.5, 0)),
    Part.ArcOfCircle(Part.Circle(App.Vector(-27.694547, 39.221111, 0), App.Vector(0, 0, 1), 1.75), math.radians(-46.952976), math.radians(133.047024)),
    Part.LineSegment(App.Vector(-63.5, 7.057778, 0), App.Vector(-60.576825, 9.788172, 0)),
    Part.ArcOfCircle(Part.Circle(App.Vector(-59.382278, 8.509283, 0), App.Vector(0, 0, 1), 1.75), math.radians(-46.952976), math.radians(133.047024)),
    Part.LineSegment(App.Vector(-58.187731, 7.230393, 0), App.Vector(-61.110906, 4.5, 0)),
    Part.ArcOfCircle(Part.Circle(App.Vector(-62.305453, 5.778889, 0), App.Vector(0, 0, 1), 1.75), math.radians(133.047024), math.radians(313.047024)),
], False)
sketch15.addConstraint([
    Sketcher.Constraint("Tangent", 0, 2, 1, 2),
    Sketcher.Constraint("Tangent", 1, 1, 2, 1),
    Sketcher.Constraint("Tangent", 2, 2, 3, 2),
    Sketcher.Constraint("Tangent", 3, 1, 0, 1),
    Sketcher.Constraint("Tangent", 4, 2, 5, 2),
    Sketcher.Constraint("Tangent", 5, 1, 6, 1),
    Sketcher.Constraint("Tangent", 6, 2, 7, 2),
    Sketcher.Constraint("Tangent", 7, 1, 4, 1),
    Sketcher.Constraint("Tangent", 8, 2, 9, 2),
    Sketcher.Constraint("Tangent", 9, 1, 10, 1),
    Sketcher.Constraint("Tangent", 10, 2, 11, 2),
    Sketcher.Constraint("Tangent", 11, 1, 8, 1),
    Sketcher.Constraint("Equal", 1, 3),
    Sketcher.Constraint("Equal", 3, 5),
    Sketcher.Constraint("Equal", 5, 7),
    Sketcher.Constraint("Equal", 7, 9),
    Sketcher.Constraint("Equal", 9, 11),
    Sketcher.Constraint("Perpendicular", 2, 4),
    Sketcher.Constraint("Parallel", 6, 8),
    Sketcher.Constraint("Horizontal", 1, 1, 10, 2),
    Sketcher.Constraint("Equal", 2, 4),
    Sketcher.Constraint("Equal", 6, 8),
    Sketcher.Constraint("Radius", 1, Q("1.75 mm")),
    Sketcher.Constraint("Distance", 0, Q("4 mm")),
    Sketcher.Constraint("DistanceX", 1, 1, -1, 1, Q("29.5 mm")),
    Sketcher.Constraint("DistanceY", -1, 1, 1, 1, Q("4.5 mm")),
    Sketcher.Constraint("DistanceY", -1, 1, 6, 2, Q("40.5 mm")),
    Sketcher.Constraint("DistanceX", 7, 1, -1, 1, Q("26.5 mm")),
    Sketcher.Constraint("DistanceX", 11, 1, -1, 1, Q("63.5 mm")),
    Sketcher.Constraint("DistanceX", 5, 3, 0, 2, Q("3.6755 mm")),
])
pocket8 = doc.addObject("PartDesign::Pocket", "Pocket007")
body.addObject(pocket8)
pocket8.Profile = sketch15
pocket8.Type = "ThroughAll"
pocket8.Reversed = True

sketch16 = doc.addObject("Sketcher::SketchObject", "Sketch015")
body.addObject(sketch16)
sketch16.AttachmentSupport = (doc.XZ_Plane, [""])
sketch16.MapMode = "FlatFace"
sketch16.AttachmentOffset = App.Placement(App.Vector(0, 0, -20), App.Rotation())
add_polygon(sketch16, [(26.75, 1.38), (29.466805, -2.5), (20.243195, -2.5), (22.96, 1.38)])
add_polygon(sketch16, [(-20.443195, -2.5), (-29.666805, -2.5), (-26.95, 1.38), (-23.16, 1.38)])
sketch16.addConstraint([
    Sketcher.Constraint("Horizontal", 1),
    Sketcher.Constraint("Horizontal", 3),
    Sketcher.Constraint("Horizontal", 4),
    Sketcher.Constraint("Horizontal", 6),
    Sketcher.Constraint("Parallel", 2, 5),
    Sketcher.Constraint("Parallel", 0, 7),
    Sketcher.Constraint("Horizontal", 1, 2, 4, 2),
    Sketcher.Constraint("Horizontal", 3, 2, 5, 2),
    Sketcher.Constraint("Equal", 1, 4),
    Sketcher.Constraint("Equal", 0, 2),
    Sketcher.Constraint("Angle", 0, Q("-55 deg")),
    Sketcher.Constraint("DistanceX", 3, 1, 3, 2, Q("3.79 mm")),
    Sketcher.Constraint("DistanceY", 0, 2, -1, 1, Q("2.5 mm")),
    Sketcher.Constraint("DistanceX", 5, 2, 3, 2, Q("53.7 mm")),
    Sketcher.Constraint("DistanceX", -1, 1, 2, 2, Q("22.96 mm")),
    Sketcher.Constraint("DistanceY", -1, 1, 2, 2, Q("1.38 mm")),
])
pocket9 = doc.addObject("PartDesign::Pocket", "Pocket008")
body.addObject(pocket9)
pocket9.Profile = sketch16
pocket9.Length = 40
pocket9.Reversed = True

doc.recompute()
